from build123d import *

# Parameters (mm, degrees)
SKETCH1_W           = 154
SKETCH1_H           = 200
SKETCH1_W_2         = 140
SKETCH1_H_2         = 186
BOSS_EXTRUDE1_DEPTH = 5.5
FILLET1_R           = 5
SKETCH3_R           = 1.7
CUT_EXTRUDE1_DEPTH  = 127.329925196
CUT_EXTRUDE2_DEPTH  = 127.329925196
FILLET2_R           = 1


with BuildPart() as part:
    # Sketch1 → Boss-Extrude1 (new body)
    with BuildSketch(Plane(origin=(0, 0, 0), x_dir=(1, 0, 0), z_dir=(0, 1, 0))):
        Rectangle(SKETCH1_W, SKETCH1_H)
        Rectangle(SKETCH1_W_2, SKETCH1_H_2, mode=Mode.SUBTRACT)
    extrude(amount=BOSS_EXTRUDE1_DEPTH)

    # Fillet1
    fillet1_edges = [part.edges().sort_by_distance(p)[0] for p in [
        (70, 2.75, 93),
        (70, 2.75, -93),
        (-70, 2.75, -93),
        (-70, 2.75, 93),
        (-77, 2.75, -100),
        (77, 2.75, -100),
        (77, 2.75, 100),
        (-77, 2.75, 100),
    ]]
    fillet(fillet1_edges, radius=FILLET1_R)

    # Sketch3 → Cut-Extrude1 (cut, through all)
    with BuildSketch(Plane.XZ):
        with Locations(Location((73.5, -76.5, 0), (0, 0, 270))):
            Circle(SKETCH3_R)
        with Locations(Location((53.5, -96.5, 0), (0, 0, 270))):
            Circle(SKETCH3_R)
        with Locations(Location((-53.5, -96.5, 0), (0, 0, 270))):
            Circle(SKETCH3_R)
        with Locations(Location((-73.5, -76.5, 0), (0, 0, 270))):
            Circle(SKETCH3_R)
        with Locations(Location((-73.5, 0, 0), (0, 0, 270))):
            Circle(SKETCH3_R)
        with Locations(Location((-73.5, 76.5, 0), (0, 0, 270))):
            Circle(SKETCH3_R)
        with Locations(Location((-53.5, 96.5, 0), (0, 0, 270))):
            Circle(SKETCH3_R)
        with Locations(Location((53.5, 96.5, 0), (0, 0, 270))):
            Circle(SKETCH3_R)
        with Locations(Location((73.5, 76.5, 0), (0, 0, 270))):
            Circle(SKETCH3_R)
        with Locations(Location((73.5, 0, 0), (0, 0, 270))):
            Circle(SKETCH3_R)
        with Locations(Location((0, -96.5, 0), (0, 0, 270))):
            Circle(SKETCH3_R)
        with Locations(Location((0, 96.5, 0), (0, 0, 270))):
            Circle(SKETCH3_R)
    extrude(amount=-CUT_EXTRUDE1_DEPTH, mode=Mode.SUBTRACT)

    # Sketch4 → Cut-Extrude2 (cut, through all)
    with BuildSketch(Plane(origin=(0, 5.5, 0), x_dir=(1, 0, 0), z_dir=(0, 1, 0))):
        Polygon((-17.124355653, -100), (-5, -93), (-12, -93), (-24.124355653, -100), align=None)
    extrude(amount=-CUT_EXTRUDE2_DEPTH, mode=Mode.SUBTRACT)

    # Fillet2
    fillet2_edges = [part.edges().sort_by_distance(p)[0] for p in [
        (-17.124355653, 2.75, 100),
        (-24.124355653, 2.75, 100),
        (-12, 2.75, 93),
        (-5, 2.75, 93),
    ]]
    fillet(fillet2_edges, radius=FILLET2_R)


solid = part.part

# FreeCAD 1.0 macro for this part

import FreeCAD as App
import Part
import Sketcher
from FreeCAD import Vector
Q = App.Units.Quantity


def edges_at(feature, points):
    """Names of the edges that pass closest to the given points."""
    edges = feature.Shape.Edges
    near = lambda p: min(range(len(edges)), key=lambda i: edges[i].distToShape(Part.Vertex(*p))[0])
    return sorted({f"Edge{near(p) + 1}" for p in points})

doc = App.newDocument("Part")
params = doc.addObject("Spreadsheet::Sheet", "Params")
for row, (alias, value) in enumerate([
    ("sketch1_width", "154 mm"),
    ("sketch1_width2", "140 mm"),
    ("sketch1_height", "200 mm"),
    ("sketch1_height2", "186 mm"),
    ("pad1_length", "5.5 mm"),
    ("fillet_radius", "5 mm"),
    ("sketch2_diameter", "3.4 mm"),
    ("sketch3_width", "7 mm"),
    ("sketch3_length", "14 mm"),
    ("fillet2_radius", "1 mm"),
], start=1):
    params.set(f"A{row}", alias)
    params.set(f"B{row}", "=" + value)
    params.setAlias(f"B{row}", alias)

body = doc.addObject("PartDesign::Body", "Body")

# Sketch on XZ plane
sketch1 = body.newObject("Sketcher::SketchObject", "Sketch")
sketch1.AttachmentSupport = (doc.getObject("XZ_Plane"), [""])
sketch1.MapMode = "FlatFace"
sketch1.addGeometry(Part.LineSegment(Vector(-77, -100, 0), Vector(-77, 100, 0)), False)
sketch1.addGeometry(Part.LineSegment(Vector(-77, 100, 0), Vector(77, 100, 0)), False)
sketch1.addGeometry(Part.LineSegment(Vector(77, 100, 0), Vector(77, -100, 0)), False)
sketch1.addGeometry(Part.LineSegment(Vector(77, -100, 0), Vector(-77, -100, 0)), False)
sketch1.addGeometry(Part.LineSegment(Vector(70, 93, 0), Vector(-70, 93, 0)), False)
sketch1.addGeometry(Part.LineSegment(Vector(-70, 93, 0), Vector(-70, -93, 0)), False)
sketch1.addGeometry(Part.LineSegment(Vector(-70, -93, 0), Vector(70, -93, 0)), False)
sketch1.addGeometry(Part.LineSegment(Vector(70, -93, 0), Vector(70, 93, 0)), False)
sketch1.addConstraint(Sketcher.Constraint("Coincident", 0, 2, 1, 1))
sketch1.addConstraint(Sketcher.Constraint("Coincident", 1, 2, 2, 1))
sketch1.addConstraint(Sketcher.Constraint("Coincident", 2, 2, 3, 1))
sketch1.addConstraint(Sketcher.Constraint("Coincident", 3, 2, 0, 1))
sketch1.addConstraint(Sketcher.Constraint("Coincident", 4, 2, 5, 1))
sketch1.addConstraint(Sketcher.Constraint("Coincident", 5, 2, 6, 1))
sketch1.addConstraint(Sketcher.Constraint("Coincident", 6, 2, 7, 1))
sketch1.addConstraint(Sketcher.Constraint("Coincident", 7, 2, 4, 1))
sketch1.addConstraint(Sketcher.Constraint("Vertical", 0))
sketch1.addConstraint(Sketcher.Constraint("Horizontal", 1))
sketch1.addConstraint(Sketcher.Constraint("Vertical", 2))
sketch1.addConstraint(Sketcher.Constraint("Horizontal", 3))
sketch1.addConstraint(Sketcher.Constraint("Horizontal", 4))
sketch1.addConstraint(Sketcher.Constraint("Vertical", 5))
sketch1.addConstraint(Sketcher.Constraint("Horizontal", 6))
sketch1.addConstraint(Sketcher.Constraint("Vertical", 7))
sketch1.addConstraint(Sketcher.Constraint("Symmetric", 0, 2, 2, 2, -1, 1))
sketch1.addConstraint(Sketcher.Constraint("Symmetric", 4, 2, 6, 2, -1, 1))
sketch1.addConstraint(Sketcher.Constraint("DistanceX", 1, 1, 1, 2, Q("154 mm")))
sketch1.addConstraint(Sketcher.Constraint("DistanceX", 4, 2, 4, 1, Q("140 mm")))
sketch1.addConstraint(Sketcher.Constraint("DistanceY", 0, 1, 0, 2, Q("200 mm")))
sketch1.addConstraint(Sketcher.Constraint("DistanceY", 5, 2, 5, 1, Q("186 mm")))
sketch1.setExpression("Constraints[18]", "Params.sketch1_width")
sketch1.setExpression("Constraints[19]", "Params.sketch1_width2")
sketch1.setExpression("Constraints[20]", "Params.sketch1_height")
sketch1.setExpression("Constraints[21]", "Params.sketch1_height2")
pad1 = body.newObject("PartDesign::Pad", "Pad")
pad1.Profile = sketch1
pad1.setExpression("Length", "Params.pad1_length")
pad1.Reversed = True
doc.recompute()

fillet = body.newObject("PartDesign::Fillet", "Fillet")
fillet.Base = (pad1, edges_at(pad1, [
    (70, 2.75, 93),
    (70, 2.75, -93),
    (-70, 2.75, -93),
    (-70, 2.75, 93),
    (-77, 2.75, -100),
    (77, 2.75, -100),
    (77, 2.75, 100),
    (-77, 2.75, 100),
]))
fillet.setExpression("Radius", "Params.fillet_radius")

# Sketch on XZ plane
sketch2 = body.newObject("Sketcher::SketchObject", "Sketch001")
sketch2.AttachmentSupport = (doc.getObject("XZ_Plane"), [""])
sketch2.MapMode = "FlatFace"
sketch2.addGeometry(Part.Circle(Vector(73.5, -76.5, 0), Vector(0, 0, 1), 1.7), False)
sketch2.addGeometry(Part.Circle(Vector(53.5, -96.5, 0), Vector(0, 0, 1), 1.7), False)
sketch2.addGeometry(Part.Circle(Vector(-53.5, -96.5, 0), Vector(0, 0, 1), 1.7), False)
sketch2.addGeometry(Part.Circle(Vector(-73.5, -76.5, 0), Vector(0, 0, 1), 1.7), False)
sketch2.addGeometry(Part.Circle(Vector(-73.5, 0, 0), Vector(0, 0, 1), 1.7), False)
sketch2.addGeometry(Part.Circle(Vector(-73.5, 76.5, 0), Vector(0, 0, 1), 1.7), False)
sketch2.addGeometry(Part.Circle(Vector(-53.5, 96.5, 0), Vector(0, 0, 1), 1.7), False)
sketch2.addGeometry(Part.Circle(Vector(53.5, 96.5, 0), Vector(0, 0, 1), 1.7), False)
sketch2.addGeometry(Part.Circle(Vector(73.5, 76.5, 0), Vector(0, 0, 1), 1.7), False)
sketch2.addGeometry(Part.Circle(Vector(73.5, 0, 0), Vector(0, 0, 1), 1.7), False)
sketch2.addGeometry(Part.Circle(Vector(0, -96.5, 0), Vector(0, 0, 1), 1.7), False)
sketch2.addGeometry(Part.Circle(Vector(0, 96.5, 0), Vector(0, 0, 1), 1.7), False)
sketch2.addConstraint(Sketcher.Constraint("Equal", 0, 1))
sketch2.addConstraint(Sketcher.Constraint("Equal", 1, 2))
sketch2.addConstraint(Sketcher.Constraint("Equal", 2, 3))
sketch2.addConstraint(Sketcher.Constraint("Equal", 3, 4))
sketch2.addConstraint(Sketcher.Constraint("Equal", 4, 5))
sketch2.addConstraint(Sketcher.Constraint("Equal", 5, 6))
sketch2.addConstraint(Sketcher.Constraint("Equal", 6, 7))
sketch2.addConstraint(Sketcher.Constraint("Equal", 7, 8))
sketch2.addConstraint(Sketcher.Constraint("Equal", 8, 9))
sketch2.addConstraint(Sketcher.Constraint("Equal", 9, 10))
sketch2.addConstraint(Sketcher.Constraint("Equal", 10, 11))
sketch2.addConstraint(Sketcher.Constraint("Symmetric", 0, 3, 5, 3, -1, 1))
sketch2.addConstraint(Sketcher.Constraint("Symmetric", 1, 3, 6, 3, -1, 1))
sketch2.addConstraint(Sketcher.Constraint("Symmetric", 2, 3, 7, 3, -1, 1))
sketch2.addConstraint(Sketcher.Constraint("Symmetric", 3, 3, 8, 3, -1, 1))
sketch2.addConstraint(Sketcher.Constraint("Symmetric", 4, 3, 9, 3, -1, 1))
sketch2.addConstraint(Sketcher.Constraint("Symmetric", 10, 3, 11, 3, -1, 1))
sketch2.addConstraint(Sketcher.Constraint("Symmetric", 1, 3, 2, 3, -2))
sketch2.addConstraint(Sketcher.Constraint("Symmetric", 0, 3, 3, 3, -2))
sketch2.addConstraint(Sketcher.Constraint("PointOnObject", 4, 3, -1))
sketch2.addConstraint(Sketcher.Constraint("PointOnObject", 10, 3, -2))
sketch2.addConstraint(Sketcher.Constraint("Horizontal", 2, 3, 10, 3))
sketch2.addConstraint(Sketcher.Constraint("Vertical", 3, 3, 4, 3))
sketch2.addConstraint(Sketcher.Constraint("Diameter", 0, Q("3.4 mm")))
sketch2.addConstraint(Sketcher.Constraint("DistanceX", 1, 3, 0, 3, Q("20 mm")))
sketch2.addConstraint(Sketcher.Constraint("DistanceY", 1, 3, 0, 3, Q("20 mm")))
sketch2.addConstraint(Sketcher.Constraint("DistanceX", 2, 3, 1, 3, Q("107 mm")))
sketch2.addConstraint(Sketcher.Constraint("DistanceY", 3, 3, 5, 3, Q("153 mm")))
sketch2.setExpression("Constraints[23]", "Params.sketch2_diameter")
pocket1 = body.newObject("PartDesign::Pocket", "Pocket")
pocket1.Profile = sketch2
pocket1.Type = "ThroughAll"

# Sketch on XZ plane
sketch3 = body.newObject("Sketcher::SketchObject", "Sketch002")
sketch3.AttachmentSupport = (doc.getObject("XZ_Plane"), [""])
sketch3.MapMode = "FlatFace"
sketch3.AttachmentOffset = App.Placement(Vector(0, 0, -5.5), App.Rotation())
sketch3.addGeometry(Part.LineSegment(Vector(-17, 100, 0), Vector(-5, 93, 0)), False)
sketch3.addGeometry(Part.LineSegment(Vector(-5, 93, 0), Vector(-12, 93, 0)), False)
sketch3.addGeometry(Part.LineSegment(Vector(-12, 93, 0), Vector(-24, 100, 0)), False)
sketch3.addGeometry(Part.LineSegment(Vector(-24, 100, 0), Vector(-17, 100, 0)), False)
sketch3.addConstraint(Sketcher.Constraint("Coincident", 0, 2, 1, 1))
sketch3.addConstraint(Sketcher.Constraint("Coincident", 1, 2, 2, 1))
sketch3.addConstraint(Sketcher.Constraint("Coincident", 2, 2, 3, 1))
sketch3.addConstraint(Sketcher.Constraint("Coincident", 3, 2, 0, 1))
sketch3.addConstraint(Sketcher.Constraint("Horizontal", 1))
sketch3.addConstraint(Sketcher.Constraint("Horizontal", 3))
sketch3.addConstraint(Sketcher.Constraint("Parallel", 0, 2))
sketch3.addConstraint(Sketcher.Constraint("DistanceX", 1, 2, 1, 1, Q("7 mm")))
sketch3.addConstraint(Sketcher.Constraint("Angle", 0, Q("-30 deg")))
sketch3.addConstraint(Sketcher.Constraint("Distance", 0, Q("14 mm")))
sketch3.addConstraint(Sketcher.Constraint("DistanceX", 0, 2, -1, 1, Q("5 mm")))
sketch3.addConstraint(Sketcher.Constraint("DistanceY", -1, 1, 0, 2, Q("93 mm")))
sketch3.setExpression("Constraints[7]", "Params.sketch3_width")
sketch3.setExpression("Constraints[9]", "Params.sketch3_length")
pocket2 = body.newObject("PartDesign::Pocket", "Pocket001")
pocket2.Profile = sketch3
pocket2.Type = "ThroughAll"
pocket2.Reversed = True
doc.recompute()

fillet2 = body.newObject("PartDesign::Fillet", "Fillet001")
fillet2.Base = (pocket2, edges_at(pocket2, [
    (-17.124, 2.75, 100),
    (-24.124, 2.75, 100),
    (-12, 2.75, 93),
    (-5, 2.75, 93),
]))
fillet2.setExpression("Radius", "Params.fillet2_radius")

doc.recompute()
